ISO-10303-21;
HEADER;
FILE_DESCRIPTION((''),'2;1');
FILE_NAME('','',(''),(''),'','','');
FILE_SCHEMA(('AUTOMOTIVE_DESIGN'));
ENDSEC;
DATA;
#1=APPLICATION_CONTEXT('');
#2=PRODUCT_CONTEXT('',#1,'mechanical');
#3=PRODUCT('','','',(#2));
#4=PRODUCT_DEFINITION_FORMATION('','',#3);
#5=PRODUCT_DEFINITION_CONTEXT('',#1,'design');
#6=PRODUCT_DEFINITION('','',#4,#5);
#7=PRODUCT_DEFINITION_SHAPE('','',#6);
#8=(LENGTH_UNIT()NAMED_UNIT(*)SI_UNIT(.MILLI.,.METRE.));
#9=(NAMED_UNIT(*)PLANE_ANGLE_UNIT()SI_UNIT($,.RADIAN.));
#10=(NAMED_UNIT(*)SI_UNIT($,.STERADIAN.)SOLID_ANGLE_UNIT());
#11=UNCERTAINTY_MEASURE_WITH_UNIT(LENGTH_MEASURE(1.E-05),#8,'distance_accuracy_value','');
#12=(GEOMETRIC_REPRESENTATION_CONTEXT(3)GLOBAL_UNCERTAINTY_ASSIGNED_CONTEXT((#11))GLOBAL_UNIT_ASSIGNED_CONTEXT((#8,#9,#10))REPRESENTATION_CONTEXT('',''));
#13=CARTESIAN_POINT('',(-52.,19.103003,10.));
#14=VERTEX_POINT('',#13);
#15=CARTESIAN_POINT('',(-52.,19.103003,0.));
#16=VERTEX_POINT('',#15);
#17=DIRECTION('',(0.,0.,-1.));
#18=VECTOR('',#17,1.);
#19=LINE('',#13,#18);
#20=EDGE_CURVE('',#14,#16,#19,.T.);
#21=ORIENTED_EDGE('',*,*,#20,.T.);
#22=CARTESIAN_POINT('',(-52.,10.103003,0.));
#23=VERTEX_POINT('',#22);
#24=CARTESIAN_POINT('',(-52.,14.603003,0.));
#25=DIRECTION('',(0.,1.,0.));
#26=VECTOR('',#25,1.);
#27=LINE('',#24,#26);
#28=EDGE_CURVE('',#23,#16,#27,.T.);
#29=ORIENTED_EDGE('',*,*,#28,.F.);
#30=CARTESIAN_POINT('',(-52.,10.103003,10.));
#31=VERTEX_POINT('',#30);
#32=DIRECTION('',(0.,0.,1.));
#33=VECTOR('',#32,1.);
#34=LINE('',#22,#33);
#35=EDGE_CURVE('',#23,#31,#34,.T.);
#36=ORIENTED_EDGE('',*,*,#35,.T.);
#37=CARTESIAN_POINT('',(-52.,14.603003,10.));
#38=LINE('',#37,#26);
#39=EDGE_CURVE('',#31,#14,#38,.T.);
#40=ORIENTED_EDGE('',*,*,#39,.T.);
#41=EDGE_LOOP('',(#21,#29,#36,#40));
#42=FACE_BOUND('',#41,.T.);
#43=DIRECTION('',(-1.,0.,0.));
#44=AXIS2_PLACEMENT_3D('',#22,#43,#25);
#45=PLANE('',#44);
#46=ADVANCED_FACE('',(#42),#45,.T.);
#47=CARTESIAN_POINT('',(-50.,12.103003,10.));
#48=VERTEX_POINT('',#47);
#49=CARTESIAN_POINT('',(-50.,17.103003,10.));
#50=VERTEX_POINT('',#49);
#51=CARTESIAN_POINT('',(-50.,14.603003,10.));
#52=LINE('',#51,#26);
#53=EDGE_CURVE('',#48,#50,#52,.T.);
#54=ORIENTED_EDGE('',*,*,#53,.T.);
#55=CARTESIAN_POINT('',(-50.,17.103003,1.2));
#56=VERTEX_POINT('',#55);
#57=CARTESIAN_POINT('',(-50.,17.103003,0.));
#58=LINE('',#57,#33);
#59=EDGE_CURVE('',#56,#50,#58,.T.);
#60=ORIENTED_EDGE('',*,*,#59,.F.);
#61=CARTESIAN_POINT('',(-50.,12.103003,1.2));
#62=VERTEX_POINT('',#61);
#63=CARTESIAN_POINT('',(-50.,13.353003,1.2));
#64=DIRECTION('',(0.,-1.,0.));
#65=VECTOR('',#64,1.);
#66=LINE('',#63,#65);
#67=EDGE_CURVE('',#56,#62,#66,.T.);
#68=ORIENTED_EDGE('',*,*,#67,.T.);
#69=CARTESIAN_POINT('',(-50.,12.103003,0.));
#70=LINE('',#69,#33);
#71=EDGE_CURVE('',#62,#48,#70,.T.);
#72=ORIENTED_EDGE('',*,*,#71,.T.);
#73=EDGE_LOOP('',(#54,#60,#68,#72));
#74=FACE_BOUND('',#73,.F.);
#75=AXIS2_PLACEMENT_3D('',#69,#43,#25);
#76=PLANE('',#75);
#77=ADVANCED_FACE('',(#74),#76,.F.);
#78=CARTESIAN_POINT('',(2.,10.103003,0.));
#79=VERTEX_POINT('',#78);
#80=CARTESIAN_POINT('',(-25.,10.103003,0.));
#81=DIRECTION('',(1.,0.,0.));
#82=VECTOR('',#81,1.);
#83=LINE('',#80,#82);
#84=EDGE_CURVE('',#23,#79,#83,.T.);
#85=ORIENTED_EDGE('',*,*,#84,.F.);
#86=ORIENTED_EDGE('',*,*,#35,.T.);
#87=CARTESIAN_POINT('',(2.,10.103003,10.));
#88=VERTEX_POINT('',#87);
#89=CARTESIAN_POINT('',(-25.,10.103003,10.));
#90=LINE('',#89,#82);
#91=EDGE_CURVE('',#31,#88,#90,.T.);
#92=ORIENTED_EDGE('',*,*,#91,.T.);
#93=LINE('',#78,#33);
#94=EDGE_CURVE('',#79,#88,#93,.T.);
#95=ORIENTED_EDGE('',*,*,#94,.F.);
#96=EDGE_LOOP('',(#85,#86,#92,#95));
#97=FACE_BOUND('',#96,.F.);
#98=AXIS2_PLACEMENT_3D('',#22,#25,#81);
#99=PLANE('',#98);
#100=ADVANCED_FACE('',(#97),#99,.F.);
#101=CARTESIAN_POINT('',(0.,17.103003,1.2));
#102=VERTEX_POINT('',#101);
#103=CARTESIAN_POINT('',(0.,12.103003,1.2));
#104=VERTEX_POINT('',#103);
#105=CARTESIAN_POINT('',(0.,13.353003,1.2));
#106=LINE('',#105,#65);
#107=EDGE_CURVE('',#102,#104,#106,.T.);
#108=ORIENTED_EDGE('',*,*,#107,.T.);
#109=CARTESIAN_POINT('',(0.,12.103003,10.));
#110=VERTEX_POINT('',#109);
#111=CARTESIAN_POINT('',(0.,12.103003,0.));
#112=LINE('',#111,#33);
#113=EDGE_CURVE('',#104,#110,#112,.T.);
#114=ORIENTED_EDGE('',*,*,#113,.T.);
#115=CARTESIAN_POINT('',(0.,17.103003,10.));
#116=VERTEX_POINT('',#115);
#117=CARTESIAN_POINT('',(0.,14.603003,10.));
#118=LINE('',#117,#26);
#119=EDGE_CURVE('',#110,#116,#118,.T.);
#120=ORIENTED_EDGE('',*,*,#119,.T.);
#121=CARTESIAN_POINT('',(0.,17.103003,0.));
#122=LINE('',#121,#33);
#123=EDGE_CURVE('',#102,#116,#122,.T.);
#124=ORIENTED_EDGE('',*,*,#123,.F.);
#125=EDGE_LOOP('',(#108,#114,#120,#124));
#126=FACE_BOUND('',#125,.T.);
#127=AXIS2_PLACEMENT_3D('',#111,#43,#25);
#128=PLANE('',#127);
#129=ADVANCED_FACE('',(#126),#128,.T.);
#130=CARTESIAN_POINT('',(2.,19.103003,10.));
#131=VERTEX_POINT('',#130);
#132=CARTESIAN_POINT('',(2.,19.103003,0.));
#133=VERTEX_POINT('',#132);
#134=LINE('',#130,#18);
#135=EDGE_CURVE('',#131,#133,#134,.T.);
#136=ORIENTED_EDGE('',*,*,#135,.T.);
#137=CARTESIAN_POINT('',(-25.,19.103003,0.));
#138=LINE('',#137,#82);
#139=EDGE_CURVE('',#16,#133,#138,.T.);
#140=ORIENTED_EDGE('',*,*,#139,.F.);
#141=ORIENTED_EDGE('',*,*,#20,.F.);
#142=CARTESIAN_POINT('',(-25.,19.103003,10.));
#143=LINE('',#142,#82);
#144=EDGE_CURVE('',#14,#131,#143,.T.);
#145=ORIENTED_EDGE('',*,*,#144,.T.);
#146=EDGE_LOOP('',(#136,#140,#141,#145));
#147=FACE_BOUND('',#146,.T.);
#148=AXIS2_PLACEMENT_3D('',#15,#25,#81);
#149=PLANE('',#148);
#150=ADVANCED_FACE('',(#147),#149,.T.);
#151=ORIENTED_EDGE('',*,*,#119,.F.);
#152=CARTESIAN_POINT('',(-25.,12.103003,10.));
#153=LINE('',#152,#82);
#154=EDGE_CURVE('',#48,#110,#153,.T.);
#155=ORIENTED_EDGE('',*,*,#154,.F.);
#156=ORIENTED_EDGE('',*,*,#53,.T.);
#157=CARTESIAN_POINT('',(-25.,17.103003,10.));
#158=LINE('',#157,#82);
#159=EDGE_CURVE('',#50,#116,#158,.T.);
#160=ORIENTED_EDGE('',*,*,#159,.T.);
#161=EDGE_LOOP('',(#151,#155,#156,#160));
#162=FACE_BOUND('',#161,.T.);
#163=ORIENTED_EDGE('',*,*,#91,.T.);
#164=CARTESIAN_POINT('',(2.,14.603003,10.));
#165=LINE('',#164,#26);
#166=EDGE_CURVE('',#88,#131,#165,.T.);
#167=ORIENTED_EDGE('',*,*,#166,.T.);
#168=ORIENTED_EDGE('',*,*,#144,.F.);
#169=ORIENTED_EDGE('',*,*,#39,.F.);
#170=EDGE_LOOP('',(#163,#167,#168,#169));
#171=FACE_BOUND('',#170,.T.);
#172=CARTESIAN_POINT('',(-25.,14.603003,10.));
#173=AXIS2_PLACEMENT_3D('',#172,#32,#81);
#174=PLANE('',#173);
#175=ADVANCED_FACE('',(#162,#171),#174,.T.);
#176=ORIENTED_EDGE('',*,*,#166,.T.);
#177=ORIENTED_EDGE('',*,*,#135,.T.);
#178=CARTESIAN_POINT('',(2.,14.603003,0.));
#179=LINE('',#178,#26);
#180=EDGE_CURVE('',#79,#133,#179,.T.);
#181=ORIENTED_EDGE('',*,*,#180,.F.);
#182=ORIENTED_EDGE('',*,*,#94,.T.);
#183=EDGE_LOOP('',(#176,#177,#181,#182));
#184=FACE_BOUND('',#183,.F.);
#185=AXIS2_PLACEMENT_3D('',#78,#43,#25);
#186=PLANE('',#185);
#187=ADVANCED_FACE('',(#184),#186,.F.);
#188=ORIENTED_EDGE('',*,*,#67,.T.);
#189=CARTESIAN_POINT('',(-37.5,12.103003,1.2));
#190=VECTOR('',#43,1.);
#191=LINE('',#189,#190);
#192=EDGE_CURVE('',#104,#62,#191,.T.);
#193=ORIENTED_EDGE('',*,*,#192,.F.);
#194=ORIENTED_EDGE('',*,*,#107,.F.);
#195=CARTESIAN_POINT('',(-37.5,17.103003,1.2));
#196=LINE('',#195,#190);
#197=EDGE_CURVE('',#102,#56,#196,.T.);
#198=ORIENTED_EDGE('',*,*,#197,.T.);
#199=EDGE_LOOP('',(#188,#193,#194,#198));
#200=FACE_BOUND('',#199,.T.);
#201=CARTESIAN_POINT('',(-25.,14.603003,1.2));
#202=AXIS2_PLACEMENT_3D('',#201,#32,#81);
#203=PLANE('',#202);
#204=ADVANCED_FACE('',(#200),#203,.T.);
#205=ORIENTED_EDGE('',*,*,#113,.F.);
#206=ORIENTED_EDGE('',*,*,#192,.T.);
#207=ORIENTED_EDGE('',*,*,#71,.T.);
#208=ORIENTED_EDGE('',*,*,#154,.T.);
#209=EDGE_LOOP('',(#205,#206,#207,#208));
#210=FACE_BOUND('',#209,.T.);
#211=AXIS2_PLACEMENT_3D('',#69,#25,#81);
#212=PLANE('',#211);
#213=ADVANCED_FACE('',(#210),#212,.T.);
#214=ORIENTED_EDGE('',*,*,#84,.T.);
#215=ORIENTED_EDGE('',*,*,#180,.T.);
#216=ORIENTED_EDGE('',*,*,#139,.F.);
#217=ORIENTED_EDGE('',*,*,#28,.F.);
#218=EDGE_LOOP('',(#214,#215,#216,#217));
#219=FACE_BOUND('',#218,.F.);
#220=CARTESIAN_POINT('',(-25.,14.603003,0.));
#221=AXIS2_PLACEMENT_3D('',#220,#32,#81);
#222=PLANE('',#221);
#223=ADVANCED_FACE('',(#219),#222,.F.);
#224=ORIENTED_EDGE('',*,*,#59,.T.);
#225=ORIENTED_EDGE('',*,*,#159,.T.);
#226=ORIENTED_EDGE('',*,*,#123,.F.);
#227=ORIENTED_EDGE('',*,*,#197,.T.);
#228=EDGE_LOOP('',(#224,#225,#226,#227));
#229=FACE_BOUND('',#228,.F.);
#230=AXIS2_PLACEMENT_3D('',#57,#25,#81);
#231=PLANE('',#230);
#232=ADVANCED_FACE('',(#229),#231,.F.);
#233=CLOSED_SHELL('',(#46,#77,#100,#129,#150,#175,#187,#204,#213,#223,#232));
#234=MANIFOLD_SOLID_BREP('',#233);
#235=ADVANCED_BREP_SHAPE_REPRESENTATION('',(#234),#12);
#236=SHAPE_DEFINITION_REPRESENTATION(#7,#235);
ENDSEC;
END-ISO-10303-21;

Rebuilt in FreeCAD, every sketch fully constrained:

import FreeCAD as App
import Part
import Sketcher

V = App.Vector
Q = App.Units.Quantity

doc = App.newDocument("Part")
body = doc.addObject("PartDesign::Body", "Body")

# Sketch on XY plane
sketch1 = body.newObject("Sketcher::SketchObject", "Sketch")
sketch1.AttachmentSupport = (doc.getObject("XY_Plane"), [""])
sketch1.MapMode = "FlatFace"
sketch1.addGeometry([
    Part.LineSegment(V(-52, 19.103003, 0), V(-52, 10.103003, 0)),
    Part.LineSegment(V(-52, 10.103003, 0), V(2, 10.103003, 0)),
    Part.LineSegment(V(2, 10.103003, 0), V(2, 19.103003, 0)),
    Part.LineSegment(V(2, 19.103003, 0), V(-52, 19.103003, 0)),
], False)
sketch1.addConstraint([
    Sketcher.Constraint("Coincident", 0, 2, 1, 1),
    Sketcher.Constraint("Coincident", 1, 2, 2, 1),
    Sketcher.Constraint("Coincident", 2, 2, 3, 1),
    Sketcher.Constraint("Coincident", 3, 2, 0, 1),
    Sketcher.Constraint("Vertical", 0),
    Sketcher.Constraint("Horizontal", 1),
    Sketcher.Constraint("Vertical", 2),
    Sketcher.Constraint("Horizontal", 3),
    Sketcher.Constraint("DistanceX", 1, 1, 1, 2, Q("54 mm")),
    Sketcher.Constraint("DistanceY", 0, 2, 0, 1, Q("9 mm")),
    Sketcher.Constraint("DistanceX", 0, 2, -1, 1, Q("52 mm")),
    Sketcher.Constraint("DistanceY", -1, 1, 0, 2, Q("10.103003 mm")),
])
pad1 = body.newObject("PartDesign::Pad", "Pad")
pad1.Profile = sketch1
pad1.Length = 1.2

# Sketch on XY plane
sketch2 = body.newObject("Sketcher::SketchObject", "Sketch001")
sketch2.AttachmentSupport = (doc.getObject("XY_Plane"), [""])
sketch2.MapMode = "FlatFace"
sketch2.addGeometry([
    Part.LineSegment(V(-52, 19.103003, 0), V(-52, 10.103003, 0)),  # 0
    Part.LineSegment(V(-52, 10.103003, 0), V(2, 10.103003, 0)),  # 1
    Part.LineSegment(V(2, 10.103003, 0), V(2, 19.103003, 0)),  # 2
    Part.LineSegment(V(2, 19.103003, 0), V(-52, 19.103003, 0)),  # 3
    Part.LineSegment(V(0, 12.103003, 0), V(-50, 12.103003, 0)),  # 4
    Part.LineSegment(V(-50, 12.103003, 0), V(-50, 17.103003, 0)),  # 5
    Part.LineSegment(V(-50, 17.103003, 0), V(0, 17.103003, 0)),  # 6
    Part.LineSegment(V(0, 17.103003, 0), V(0, 12.103003, 0)),  # 7
], False)
sketch2.addConstraint([
    Sketcher.Constraint("Coincident", 0, 2, 1, 1),
    Sketcher.Constraint("Coincident", 1, 2, 2, 1),
    Sketcher.Constraint("Coincident", 2, 2, 3, 1),
    Sketcher.Constraint("Coincident", 3, 2, 0, 1),
    Sketcher.Constraint("Coincident", 4, 2, 5, 1),
    Sketcher.Constraint("Coincident", 5, 2, 6, 1),
    Sketcher.Constraint("Coincident", 6, 2, 7, 1),
    Sketcher.Constraint("Coincident", 7, 2, 4, 1),
    Sketcher.Constraint("Vertical", 0),
    Sketcher.Constraint("Horizontal", 1),
    Sketcher.Constraint("Vertical", 2),
    Sketcher.Constraint("Horizontal", 3),
    Sketcher.Constraint("Horizontal", 4),
    Sketcher.Constraint("Vertical", 5),
    Sketcher.Constraint("Horizontal", 6),
    Sketcher.Constraint("Vertical", 7),
    Sketcher.Constraint("PointOnObject", 6, 2, -2),
    Sketcher.Constraint("DistanceX", 1, 1, 1, 2, Q("54 mm")),
    Sketcher.Constraint("DistanceX", 4, 2, 4, 1, Q("50 mm")),
    Sketcher.Constraint("DistanceY", 0, 2, 0, 1, Q("9 mm")),
    Sketcher.Constraint("DistanceY", 5, 1, 5, 2, Q("5 mm")),
    Sketcher.Constraint("DistanceX", 0, 2, -1, 1, Q("52 mm")),
    Sketcher.Constraint("DistanceY", 0, 2, 4, 2, Q("2 mm")),
    Sketcher.Constraint("DistanceY", -1, 1, 0, 2, Q("10.103003 mm")),
])
pad2 = body.newObject("PartDesign::Pad", "Pad001")
pad2.Profile = sketch2
pad2.Length = 10

doc.recompute()
